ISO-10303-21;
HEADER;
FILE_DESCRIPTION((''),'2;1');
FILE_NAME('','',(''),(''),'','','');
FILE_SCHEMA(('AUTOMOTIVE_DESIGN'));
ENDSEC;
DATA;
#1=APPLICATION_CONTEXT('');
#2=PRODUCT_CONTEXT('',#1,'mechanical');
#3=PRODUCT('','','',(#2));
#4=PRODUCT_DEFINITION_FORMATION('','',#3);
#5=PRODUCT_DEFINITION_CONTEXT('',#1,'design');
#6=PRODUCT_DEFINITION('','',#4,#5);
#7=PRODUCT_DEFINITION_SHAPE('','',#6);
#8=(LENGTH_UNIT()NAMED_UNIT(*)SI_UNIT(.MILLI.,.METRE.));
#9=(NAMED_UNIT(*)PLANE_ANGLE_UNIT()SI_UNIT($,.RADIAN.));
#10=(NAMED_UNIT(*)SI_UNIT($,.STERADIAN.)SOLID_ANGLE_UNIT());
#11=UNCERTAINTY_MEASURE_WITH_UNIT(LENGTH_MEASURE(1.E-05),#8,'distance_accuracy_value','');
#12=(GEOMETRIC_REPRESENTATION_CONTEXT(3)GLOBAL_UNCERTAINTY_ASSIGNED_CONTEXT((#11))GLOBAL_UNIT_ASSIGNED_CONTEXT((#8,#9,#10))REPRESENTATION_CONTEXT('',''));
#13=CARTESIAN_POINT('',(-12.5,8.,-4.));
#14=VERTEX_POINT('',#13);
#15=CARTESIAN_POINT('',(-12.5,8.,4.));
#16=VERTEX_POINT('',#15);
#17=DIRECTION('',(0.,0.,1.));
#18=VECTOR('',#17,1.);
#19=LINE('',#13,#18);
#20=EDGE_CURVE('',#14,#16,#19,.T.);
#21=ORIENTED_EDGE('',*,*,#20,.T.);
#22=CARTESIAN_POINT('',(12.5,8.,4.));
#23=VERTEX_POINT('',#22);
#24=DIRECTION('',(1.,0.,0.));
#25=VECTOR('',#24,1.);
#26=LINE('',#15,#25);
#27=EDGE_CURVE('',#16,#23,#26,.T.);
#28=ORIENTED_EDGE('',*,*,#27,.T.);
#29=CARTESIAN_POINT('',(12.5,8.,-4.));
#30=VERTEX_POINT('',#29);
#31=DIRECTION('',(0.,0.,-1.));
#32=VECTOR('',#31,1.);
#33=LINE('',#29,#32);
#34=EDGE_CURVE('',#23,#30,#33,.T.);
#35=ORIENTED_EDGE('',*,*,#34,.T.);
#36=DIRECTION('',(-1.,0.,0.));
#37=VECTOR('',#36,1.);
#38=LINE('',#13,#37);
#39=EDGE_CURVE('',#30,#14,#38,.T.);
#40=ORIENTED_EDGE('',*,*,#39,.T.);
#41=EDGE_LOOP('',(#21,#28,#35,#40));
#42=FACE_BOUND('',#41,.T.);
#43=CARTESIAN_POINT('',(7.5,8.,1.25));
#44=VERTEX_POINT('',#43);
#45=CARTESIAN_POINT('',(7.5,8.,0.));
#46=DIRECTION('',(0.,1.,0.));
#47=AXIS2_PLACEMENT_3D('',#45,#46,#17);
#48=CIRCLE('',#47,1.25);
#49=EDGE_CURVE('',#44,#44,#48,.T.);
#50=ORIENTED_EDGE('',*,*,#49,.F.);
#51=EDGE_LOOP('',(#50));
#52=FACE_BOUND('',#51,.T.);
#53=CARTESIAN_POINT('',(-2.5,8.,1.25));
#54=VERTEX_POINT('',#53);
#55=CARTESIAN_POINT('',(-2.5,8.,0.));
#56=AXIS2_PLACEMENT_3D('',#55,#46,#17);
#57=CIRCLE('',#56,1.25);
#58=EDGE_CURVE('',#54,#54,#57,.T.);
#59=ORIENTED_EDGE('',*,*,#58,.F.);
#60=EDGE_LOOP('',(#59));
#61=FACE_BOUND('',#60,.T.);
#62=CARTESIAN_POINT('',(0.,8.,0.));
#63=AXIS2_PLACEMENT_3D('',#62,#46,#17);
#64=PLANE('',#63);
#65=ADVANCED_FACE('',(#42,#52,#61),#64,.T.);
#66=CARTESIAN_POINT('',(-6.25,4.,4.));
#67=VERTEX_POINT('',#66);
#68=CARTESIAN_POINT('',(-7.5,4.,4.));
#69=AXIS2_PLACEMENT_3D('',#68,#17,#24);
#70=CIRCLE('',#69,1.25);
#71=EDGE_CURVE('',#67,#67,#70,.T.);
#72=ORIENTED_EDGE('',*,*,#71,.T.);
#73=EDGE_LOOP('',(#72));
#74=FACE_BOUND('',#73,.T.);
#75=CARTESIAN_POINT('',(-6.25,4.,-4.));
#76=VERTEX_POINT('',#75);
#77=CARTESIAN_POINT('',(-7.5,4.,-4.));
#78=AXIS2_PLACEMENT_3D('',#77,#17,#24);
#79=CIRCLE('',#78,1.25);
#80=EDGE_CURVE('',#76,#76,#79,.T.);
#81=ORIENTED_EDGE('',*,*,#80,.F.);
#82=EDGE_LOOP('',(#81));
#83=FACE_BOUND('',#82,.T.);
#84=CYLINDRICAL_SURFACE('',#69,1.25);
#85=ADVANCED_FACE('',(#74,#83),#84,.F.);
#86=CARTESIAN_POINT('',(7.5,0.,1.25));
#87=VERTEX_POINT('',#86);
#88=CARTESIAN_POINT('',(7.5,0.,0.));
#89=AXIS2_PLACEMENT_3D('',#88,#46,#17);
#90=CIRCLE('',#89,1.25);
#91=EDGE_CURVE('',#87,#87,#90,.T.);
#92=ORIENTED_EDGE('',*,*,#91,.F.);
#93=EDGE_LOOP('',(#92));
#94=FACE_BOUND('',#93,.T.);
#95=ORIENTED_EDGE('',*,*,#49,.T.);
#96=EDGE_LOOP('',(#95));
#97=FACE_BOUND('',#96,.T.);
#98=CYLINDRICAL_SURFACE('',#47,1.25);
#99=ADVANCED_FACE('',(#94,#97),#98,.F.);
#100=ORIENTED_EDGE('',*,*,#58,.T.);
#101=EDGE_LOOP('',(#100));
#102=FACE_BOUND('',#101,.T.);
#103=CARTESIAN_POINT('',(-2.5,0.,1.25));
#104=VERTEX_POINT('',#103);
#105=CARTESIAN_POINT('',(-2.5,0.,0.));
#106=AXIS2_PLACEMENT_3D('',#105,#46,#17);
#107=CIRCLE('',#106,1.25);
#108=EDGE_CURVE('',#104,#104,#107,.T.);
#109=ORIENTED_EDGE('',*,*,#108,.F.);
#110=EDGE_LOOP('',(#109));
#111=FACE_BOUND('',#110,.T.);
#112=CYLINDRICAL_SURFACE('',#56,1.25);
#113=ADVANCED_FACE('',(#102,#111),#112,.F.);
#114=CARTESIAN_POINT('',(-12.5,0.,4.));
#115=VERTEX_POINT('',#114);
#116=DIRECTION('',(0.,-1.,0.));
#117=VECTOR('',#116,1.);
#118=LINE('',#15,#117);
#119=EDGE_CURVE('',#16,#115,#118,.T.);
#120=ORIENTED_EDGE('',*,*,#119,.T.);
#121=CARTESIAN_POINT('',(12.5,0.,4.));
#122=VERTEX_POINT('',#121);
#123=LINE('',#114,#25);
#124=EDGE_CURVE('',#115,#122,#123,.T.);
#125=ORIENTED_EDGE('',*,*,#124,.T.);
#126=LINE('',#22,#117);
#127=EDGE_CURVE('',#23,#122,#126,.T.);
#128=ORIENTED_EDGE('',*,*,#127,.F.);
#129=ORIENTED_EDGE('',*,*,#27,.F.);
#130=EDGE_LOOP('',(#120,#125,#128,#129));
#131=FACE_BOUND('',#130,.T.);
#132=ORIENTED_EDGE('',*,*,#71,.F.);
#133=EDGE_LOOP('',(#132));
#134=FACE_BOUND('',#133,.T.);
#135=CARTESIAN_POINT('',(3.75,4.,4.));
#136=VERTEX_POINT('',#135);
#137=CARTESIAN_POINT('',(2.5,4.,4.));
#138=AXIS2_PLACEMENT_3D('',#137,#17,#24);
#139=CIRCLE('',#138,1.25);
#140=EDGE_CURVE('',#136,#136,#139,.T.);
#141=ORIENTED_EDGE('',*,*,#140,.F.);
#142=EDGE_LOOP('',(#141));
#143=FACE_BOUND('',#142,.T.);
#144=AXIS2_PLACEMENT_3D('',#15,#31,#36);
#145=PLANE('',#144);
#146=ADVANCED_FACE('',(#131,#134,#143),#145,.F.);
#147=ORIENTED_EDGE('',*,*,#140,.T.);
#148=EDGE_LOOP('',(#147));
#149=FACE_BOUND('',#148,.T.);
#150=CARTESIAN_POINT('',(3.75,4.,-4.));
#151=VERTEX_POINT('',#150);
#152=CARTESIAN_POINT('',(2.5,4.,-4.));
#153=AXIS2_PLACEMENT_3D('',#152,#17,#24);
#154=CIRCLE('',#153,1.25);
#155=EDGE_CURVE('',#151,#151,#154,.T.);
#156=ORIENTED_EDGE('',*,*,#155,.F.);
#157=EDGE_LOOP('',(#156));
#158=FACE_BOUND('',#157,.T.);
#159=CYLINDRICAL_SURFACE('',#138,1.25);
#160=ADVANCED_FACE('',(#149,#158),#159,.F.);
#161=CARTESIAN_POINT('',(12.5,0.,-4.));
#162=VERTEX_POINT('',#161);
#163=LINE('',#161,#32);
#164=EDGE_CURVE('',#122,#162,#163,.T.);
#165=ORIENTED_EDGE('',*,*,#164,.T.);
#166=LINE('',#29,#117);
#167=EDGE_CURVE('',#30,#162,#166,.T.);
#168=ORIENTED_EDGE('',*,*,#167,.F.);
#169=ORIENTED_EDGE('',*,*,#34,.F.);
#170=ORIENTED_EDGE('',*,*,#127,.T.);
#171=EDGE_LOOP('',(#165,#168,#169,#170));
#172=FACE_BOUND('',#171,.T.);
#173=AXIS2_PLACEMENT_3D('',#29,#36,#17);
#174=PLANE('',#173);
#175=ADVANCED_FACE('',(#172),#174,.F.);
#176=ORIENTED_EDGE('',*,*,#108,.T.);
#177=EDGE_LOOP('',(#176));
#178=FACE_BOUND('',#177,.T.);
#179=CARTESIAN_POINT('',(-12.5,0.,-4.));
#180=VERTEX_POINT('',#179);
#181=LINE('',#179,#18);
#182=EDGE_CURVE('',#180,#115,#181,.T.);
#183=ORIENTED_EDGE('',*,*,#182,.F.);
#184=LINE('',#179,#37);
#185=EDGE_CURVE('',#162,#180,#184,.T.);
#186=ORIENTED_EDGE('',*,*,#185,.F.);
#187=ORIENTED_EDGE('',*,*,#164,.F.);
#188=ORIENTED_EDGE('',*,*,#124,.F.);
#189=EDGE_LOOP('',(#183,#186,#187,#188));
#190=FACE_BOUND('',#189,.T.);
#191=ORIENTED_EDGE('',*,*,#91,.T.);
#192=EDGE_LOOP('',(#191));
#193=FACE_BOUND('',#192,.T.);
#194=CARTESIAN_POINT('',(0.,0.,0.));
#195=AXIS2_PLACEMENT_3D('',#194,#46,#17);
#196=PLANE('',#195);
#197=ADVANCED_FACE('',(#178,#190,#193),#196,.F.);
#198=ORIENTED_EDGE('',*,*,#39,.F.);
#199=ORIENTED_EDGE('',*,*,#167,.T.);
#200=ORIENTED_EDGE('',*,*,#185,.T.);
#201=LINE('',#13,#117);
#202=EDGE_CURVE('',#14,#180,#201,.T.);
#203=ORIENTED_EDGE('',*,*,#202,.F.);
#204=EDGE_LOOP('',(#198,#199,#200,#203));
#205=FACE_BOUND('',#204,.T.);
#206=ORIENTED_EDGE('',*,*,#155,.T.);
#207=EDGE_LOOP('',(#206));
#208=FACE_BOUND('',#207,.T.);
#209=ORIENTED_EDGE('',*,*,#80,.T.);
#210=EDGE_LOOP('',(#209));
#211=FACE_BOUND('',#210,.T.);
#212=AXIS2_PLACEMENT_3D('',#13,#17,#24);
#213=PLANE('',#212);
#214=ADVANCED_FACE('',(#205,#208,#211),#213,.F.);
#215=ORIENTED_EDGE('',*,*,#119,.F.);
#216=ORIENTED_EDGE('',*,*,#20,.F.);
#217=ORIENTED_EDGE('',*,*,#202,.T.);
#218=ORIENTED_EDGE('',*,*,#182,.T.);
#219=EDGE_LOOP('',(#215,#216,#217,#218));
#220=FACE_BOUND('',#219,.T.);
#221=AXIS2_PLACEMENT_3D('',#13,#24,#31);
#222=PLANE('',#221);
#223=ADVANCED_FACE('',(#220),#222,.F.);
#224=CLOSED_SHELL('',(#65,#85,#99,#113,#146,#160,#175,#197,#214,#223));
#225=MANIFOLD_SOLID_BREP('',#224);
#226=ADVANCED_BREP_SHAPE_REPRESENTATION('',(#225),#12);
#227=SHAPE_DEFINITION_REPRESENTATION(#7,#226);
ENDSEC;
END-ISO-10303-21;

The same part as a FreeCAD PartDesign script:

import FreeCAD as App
import Part
import Sketcher
from FreeCAD import Vector

doc = App.newDocument("Part")
params = doc.addObject("Spreadsheet::Sheet", "Params")
for row, (alias, value) in enumerate([
    ("sketch1_width", "25 mm"),
    ("sketch1_height", "8 mm"),
    ("pad1_length", "8 mm"),
    ("sketch2_diameter", "2.5 mm"),
    ("hole_diameter", "2.5 mm"),
    ("sketch3_diameter", "2.5 mm"),
    ("hole2_diameter", "2.5 mm"),
], start=1):
    params.set(f"A{row}", alias)
    params.set(f"B{row}", "=" + value)
    params.setAlias(f"B{row}", alias)

body = doc.addObject("PartDesign::Body", "Body")

# Sketch on XZ plane
sketch1 = body.newObject("Sketcher::SketchObject", "Sketch")
sketch1.AttachmentSupport = (doc.getObject("XZ_Plane"), [""])
sketch1.MapMode = "FlatFace"
sketch1.addGeometry(Part.LineSegment(Vector(-12, -4, 0), Vector(-12, 4, 0)), False)
sketch1.addGeometry(Part.LineSegment(Vector(-12, 4, 0), Vector(12, 4, 0)), False)
sketch1.addGeometry(Part.LineSegment(Vector(12, 4, 0), Vector(12, -4, 0)), False)
sketch1.addGeometry(Part.LineSegment(Vector(12, -4, 0), Vector(-12, -4, 0)), False)
sketch1.addConstraint(Sketcher.Constraint("Coincident", 0, 2, 1, 1))
sketch1.addConstraint(Sketcher.Constraint("Coincident", 1, 2, 2, 1))
sketch1.addConstraint(Sketcher.Constraint("Coincident", 2, 2, 3, 1))
sketch1.addConstraint(Sketcher.Constraint("Coincident", 3, 2, 0, 1))
sketch1.addConstraint(Sketcher.Constraint("Vertical", 0))
sketch1.addConstraint(Sketcher.Constraint("Horizontal", 1))
sketch1.addConstraint(Sketcher.Constraint("Vertical", 2))
sketch1.addConstraint(Sketcher.Constraint("Horizontal", 3))
sketch1.addConstraint(Sketcher.Constraint("Symmetric", 0, 2, 2, 2, -1, 1))
sketch1.addConstraint(Sketcher.Constraint("DistanceX", 1, 1, 1, 2, 25.0))
sketch1.addConstraint(Sketcher.Constraint("DistanceY", 0, 1, 0, 2, 8.0))
sketch1.setExpression("Constraints[9]", "Params.sketch1_width")
sketch1.setExpression("Constraints[10]", "Params.sketch1_height")
pad1 = body.newObject("PartDesign::Pad", "Pad")
pad1.Profile = sketch1
pad1.setExpression("Length", "Params.pad1_length")
pad1.Reversed = True

# Sketch on XY plane
sketch2 = body.newObject("Sketcher::SketchObject", "Sketch001")
sketch2.AttachmentSupport = (doc.getObject("XY_Plane"), [""])
sketch2.MapMode = "FlatFace"
sketch2.AttachmentOffset = App.Placement(Vector(0, 0, 4), App.Rotation())
sketch2.addGeometry(Part.Circle(Vector(2.5, 4, 0), Vector(0, 0, 1), 1.2), False)
sketch2.addGeometry(Part.Circle(Vector(-7.5, 4, 0), Vector(0, 0, 1), 1.2), False)
sketch2.addConstraint(Sketcher.Constraint("Equal", 0, 1))
sketch2.addConstraint(Sketcher.Constraint("Horizontal", 0, 3, 1, 3))
sketch2.addConstraint(Sketcher.Constraint("Diameter", 0, 2.5))
sketch2.addConstraint(Sketcher.Constraint("DistanceY", -1, 1, 0, 3, 4.0))
sketch2.addConstraint(Sketcher.Constraint("DistanceX", 1, 3, 0, 3, 10.0))
sketch2.addConstraint(Sketcher.Constraint("DistanceX", -1, 1, 0, 3, 2.5))
sketch2.setExpression("Constraints[2]", "Params.sketch2_diameter")
doc.recompute()
hole = body.newObject("PartDesign::Hole", "Hole")
hole.Profile = sketch2
hole.ThreadType = "None"
hole.setExpression("Diameter", "Params.hole_diameter")
hole.DepthType = "ThroughAll"

# Sketch on XZ plane
sketch3 = body.newObject("Sketcher::SketchObject", "Sketch002")
sketch3.AttachmentSupport = (doc.getObject("XZ_Plane"), [""])
sketch3.MapMode = "FlatFace"
sketch3.AttachmentOffset = App.Placement(Vector(0, 0, -8), App.Rotation())
sketch3.addGeometry(Part.Circle(Vector(7.5, 0, 0), Vector(0, 0, 1), 1.2), False)
sketch3.addGeometry(Part.Circle(Vector(-2.5, 0, 0), Vector(0, 0, 1), 1.2), False)
sketch3.addConstraint(Sketcher.Constraint("Equal", 0, 1))
sketch3.addConstraint(Sketcher.Constraint("PointOnObject", 0, 3, -1))
sketch3.addConstraint(Sketcher.Constraint("PointOnObject", 1, 3, -1))
sketch3.addConstraint(Sketcher.Constraint("Diameter", 0, 2.5))
sketch3.addConstraint(Sketcher.Constraint("DistanceX", 1, 3, 0, 3, 10.0))
sketch3.addConstraint(Sketcher.Constraint("DistanceX", -1, 1, 0, 3, 7.5))
sketch3.setExpression("Constraints[3]", "Params.sketch3_diameter")
doc.recompute()
hole2 = body.newObject("PartDesign::Hole", "Hole001")
hole2.Profile = sketch3
hole2.ThreadType = "None"
hole2.setExpression("Diameter", "Params.hole2_diameter")
hole2.DepthType = "ThroughAll"
hole2.Reversed = True

doc.recompute()
